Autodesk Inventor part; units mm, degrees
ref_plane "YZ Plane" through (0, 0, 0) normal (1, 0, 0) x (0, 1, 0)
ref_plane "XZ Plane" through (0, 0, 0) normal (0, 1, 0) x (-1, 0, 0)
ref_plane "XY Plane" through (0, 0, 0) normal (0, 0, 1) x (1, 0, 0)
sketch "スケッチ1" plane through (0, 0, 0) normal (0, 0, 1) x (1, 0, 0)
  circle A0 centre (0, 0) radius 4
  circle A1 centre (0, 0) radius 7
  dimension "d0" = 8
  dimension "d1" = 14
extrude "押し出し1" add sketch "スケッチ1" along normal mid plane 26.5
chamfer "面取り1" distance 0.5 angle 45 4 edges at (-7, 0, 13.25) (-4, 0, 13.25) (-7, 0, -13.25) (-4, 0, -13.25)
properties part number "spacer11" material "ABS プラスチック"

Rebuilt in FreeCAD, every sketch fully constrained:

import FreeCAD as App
import Part
import Sketcher

V = App.Vector
Q = App.Units.Quantity


def edges_at(feature, points):
    """Names of the edges that pass closest to the given points."""
    edges = feature.Shape.Edges
    near = lambda p: min(range(len(edges)), key=lambda i: edges[i].distToShape(Part.Vertex(*p))[0])
    return sorted({f"Edge{near(p) + 1}" for p in points})

doc = App.newDocument("Part")
params = doc.addObject("Spreadsheet::Sheet", "Params")
for row, (alias, value) in enumerate([
    ("sketch1_diameter", "14 mm"),
    ("sketch1_diameter2", "8 mm"),
    ("pad1_length", "26.5 mm"),
    ("chamfer_size", "0.5 mm"),
], start=1):
    params.set(f"A{row}", alias)
    params.set(f"B{row}", "=" + value)
    params.setAlias(f"B{row}", alias)

body = doc.addObject("PartDesign::Body", "Body")

sketch1 = doc.addObject("Sketcher::SketchObject", "Sketch")
body.addObject(sketch1)
sketch1.AttachmentSupport = (doc.XY_Plane, [""])
sketch1.MapMode = "FlatFace"
sketch1.addGeometry([
    Part.Circle(V(0, 0, 0), V(0, 0, 1), 7),
    Part.Circle(V(0, 0, 0), V(0, 0, 1), 4),
], False)
sketch1.addConstraint([
    Sketcher.Constraint("Coincident", 0, 3, -1, 1),
    Sketcher.Constraint("Coincident", 1, 3, -1, 1),
    Sketcher.Constraint("Diameter", 0, Q("14 mm")),
    Sketcher.Constraint("Diameter", 1, Q("8 mm")),
])
sketch1.setExpression("Constraints[2]", "Params.sketch1_diameter")
sketch1.setExpression("Constraints[3]", "Params.sketch1_diameter2")
pad1 = doc.addObject("PartDesign::Pad", "Pad")
body.addObject(pad1)
pad1.Profile = sketch1
pad1.setExpression("Length", "Params.pad1_length")
pad1.Midplane = True
doc.recompute()

chamfer = doc.addObject("PartDesign::Chamfer", "Chamfer")
body.addObject(chamfer)
chamfer.Base = (pad1, edges_at(pad1, [
    (-7, 0, 13.25),
    (-4, 0, 13.25),
    (-7, 0, -13.25),
    (-4, 0, -13.25),
]))
chamfer.setExpression("Size", "Params.chamfer_size")

doc.recompute()
